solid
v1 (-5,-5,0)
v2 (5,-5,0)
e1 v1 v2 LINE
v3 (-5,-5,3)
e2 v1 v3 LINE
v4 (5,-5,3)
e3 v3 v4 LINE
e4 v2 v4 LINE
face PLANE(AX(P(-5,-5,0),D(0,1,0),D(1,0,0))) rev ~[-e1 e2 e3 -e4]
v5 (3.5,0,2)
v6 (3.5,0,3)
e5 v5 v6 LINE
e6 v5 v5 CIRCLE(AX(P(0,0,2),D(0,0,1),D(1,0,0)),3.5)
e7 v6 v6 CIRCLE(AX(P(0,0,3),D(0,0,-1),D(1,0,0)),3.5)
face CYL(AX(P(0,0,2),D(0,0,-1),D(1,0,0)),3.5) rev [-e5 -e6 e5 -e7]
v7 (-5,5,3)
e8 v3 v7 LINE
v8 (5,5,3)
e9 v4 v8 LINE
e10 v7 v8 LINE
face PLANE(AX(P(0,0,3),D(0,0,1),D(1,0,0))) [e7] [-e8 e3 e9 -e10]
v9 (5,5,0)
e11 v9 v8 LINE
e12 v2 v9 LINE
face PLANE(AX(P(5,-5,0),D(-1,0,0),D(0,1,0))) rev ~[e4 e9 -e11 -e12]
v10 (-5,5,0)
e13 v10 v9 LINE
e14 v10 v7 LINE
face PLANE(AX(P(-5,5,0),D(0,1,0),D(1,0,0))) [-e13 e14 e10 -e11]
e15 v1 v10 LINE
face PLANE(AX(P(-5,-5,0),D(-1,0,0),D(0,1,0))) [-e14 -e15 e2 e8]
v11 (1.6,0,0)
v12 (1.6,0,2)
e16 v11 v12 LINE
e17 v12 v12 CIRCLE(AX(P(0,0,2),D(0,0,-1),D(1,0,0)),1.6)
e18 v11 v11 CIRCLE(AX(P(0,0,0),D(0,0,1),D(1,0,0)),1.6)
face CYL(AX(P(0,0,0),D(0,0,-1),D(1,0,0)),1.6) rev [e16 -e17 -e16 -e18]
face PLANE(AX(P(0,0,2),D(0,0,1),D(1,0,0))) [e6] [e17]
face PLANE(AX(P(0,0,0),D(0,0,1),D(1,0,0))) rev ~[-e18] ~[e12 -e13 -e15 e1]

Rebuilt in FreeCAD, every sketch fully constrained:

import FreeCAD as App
import Part
import Sketcher

V = App.Vector
Q = App.Units.Quantity


def add_polygon(sketch, points):
    """Adds a closed chain of lines whose ends are joined by coincident constraints."""
    first, n = sketch.GeometryCount, len(points)
    for a, b in zip(points, points[1:] + points[:1]):
        sketch.addGeometry(Part.LineSegment(App.Vector(*a, 0), App.Vector(*b, 0)), False)
    for i in range(n):
        sketch.addConstraint(Sketcher.Constraint("Coincident", first + i, 2, first + (i + 1) % n, 1))

doc = App.newDocument("Part")
body = doc.addObject("PartDesign::Body", "Body")

# Sketch on XY plane
sketch1 = body.newObject("Sketcher::SketchObject", "Sketch")
sketch1.AttachmentSupport = (doc.getObject("XY_Plane"), [""])
sketch1.MapMode = "FlatFace"
sketch1.addGeometry(Part.Circle(V(0, 0, 0), V(0, 0, 1), 1.6), False)
sketch1.addConstraint([
    Sketcher.Constraint("Coincident", 0, 3, -1, 1),
    Sketcher.Constraint("Diameter", 0, Q("3.2 mm")),
])
pad1 = body.newObject("PartDesign::Pad", "Pad")
pad1.Profile = sketch1
pad1.Length = 10
body2 = doc.addObject("PartDesign::Body", "Body001")

# Sketch on XY plane
sketch2 = body2.newObject("Sketcher::SketchObject", "Sketch001")
sketch2.AttachmentSupport = (doc.getObject("XY_Plane001"), [""])
sketch2.MapMode = "FlatFace"
sketch2.AttachmentOffset = App.Placement(V(0, 0, 2), App.Rotation())
sketch2.addGeometry(Part.Circle(V(0, 0, 0), V(0, 0, 1), 3.5), False)
sketch2.addConstraint([
    Sketcher.Constraint("Coincident", 0, 3, -1, 1),
    Sketcher.Constraint("Diameter", 0, Q("7 mm")),
])
pad2 = body2.newObject("PartDesign::Pad", "Pad001")
pad2.Profile = sketch2
pad2.Length = 10
body3 = doc.addObject("PartDesign::Body", "Body002")

# Sketch on XY plane
sketch3 = body3.newObject("Sketcher::SketchObject", "Sketch002")
sketch3.AttachmentSupport = (doc.getObject("XY_Plane002"), [""])
sketch3.MapMode = "FlatFace"
add_polygon(sketch3, [(-5, 5), (-5, -5), (5, -5), (5, 5)])  # lines 0-3
sketch3.addConstraint([
    Sketcher.Constraint("Vertical", 0),
    Sketcher.Constraint("Horizontal", 1),
    Sketcher.Constraint("Vertical", 2),
    Sketcher.Constraint("Horizontal", 3),
    Sketcher.Constraint("Symmetric", 0, 2, 2, 2, -1, 1),
    Sketcher.Constraint("Equal", 3, 0),
    Sketcher.Constraint("DistanceX", 1, 1, 1, 2, Q("10 mm")),
])
pad3 = body3.newObject("PartDesign::Pad", "Pad002")
pad3.Profile = sketch3
pad3.Length = 3
doc.recompute()

boolean = body3.newObject("PartDesign::Boolean", "Boolean")
boolean.Type = "Cut"
boolean.addObjects([body2])
doc.recompute()

boolean2 = body3.newObject("PartDesign::Boolean", "Boolean001")
boolean2.Type = "Cut"
boolean2.addObjects([body])

doc.recompute()
